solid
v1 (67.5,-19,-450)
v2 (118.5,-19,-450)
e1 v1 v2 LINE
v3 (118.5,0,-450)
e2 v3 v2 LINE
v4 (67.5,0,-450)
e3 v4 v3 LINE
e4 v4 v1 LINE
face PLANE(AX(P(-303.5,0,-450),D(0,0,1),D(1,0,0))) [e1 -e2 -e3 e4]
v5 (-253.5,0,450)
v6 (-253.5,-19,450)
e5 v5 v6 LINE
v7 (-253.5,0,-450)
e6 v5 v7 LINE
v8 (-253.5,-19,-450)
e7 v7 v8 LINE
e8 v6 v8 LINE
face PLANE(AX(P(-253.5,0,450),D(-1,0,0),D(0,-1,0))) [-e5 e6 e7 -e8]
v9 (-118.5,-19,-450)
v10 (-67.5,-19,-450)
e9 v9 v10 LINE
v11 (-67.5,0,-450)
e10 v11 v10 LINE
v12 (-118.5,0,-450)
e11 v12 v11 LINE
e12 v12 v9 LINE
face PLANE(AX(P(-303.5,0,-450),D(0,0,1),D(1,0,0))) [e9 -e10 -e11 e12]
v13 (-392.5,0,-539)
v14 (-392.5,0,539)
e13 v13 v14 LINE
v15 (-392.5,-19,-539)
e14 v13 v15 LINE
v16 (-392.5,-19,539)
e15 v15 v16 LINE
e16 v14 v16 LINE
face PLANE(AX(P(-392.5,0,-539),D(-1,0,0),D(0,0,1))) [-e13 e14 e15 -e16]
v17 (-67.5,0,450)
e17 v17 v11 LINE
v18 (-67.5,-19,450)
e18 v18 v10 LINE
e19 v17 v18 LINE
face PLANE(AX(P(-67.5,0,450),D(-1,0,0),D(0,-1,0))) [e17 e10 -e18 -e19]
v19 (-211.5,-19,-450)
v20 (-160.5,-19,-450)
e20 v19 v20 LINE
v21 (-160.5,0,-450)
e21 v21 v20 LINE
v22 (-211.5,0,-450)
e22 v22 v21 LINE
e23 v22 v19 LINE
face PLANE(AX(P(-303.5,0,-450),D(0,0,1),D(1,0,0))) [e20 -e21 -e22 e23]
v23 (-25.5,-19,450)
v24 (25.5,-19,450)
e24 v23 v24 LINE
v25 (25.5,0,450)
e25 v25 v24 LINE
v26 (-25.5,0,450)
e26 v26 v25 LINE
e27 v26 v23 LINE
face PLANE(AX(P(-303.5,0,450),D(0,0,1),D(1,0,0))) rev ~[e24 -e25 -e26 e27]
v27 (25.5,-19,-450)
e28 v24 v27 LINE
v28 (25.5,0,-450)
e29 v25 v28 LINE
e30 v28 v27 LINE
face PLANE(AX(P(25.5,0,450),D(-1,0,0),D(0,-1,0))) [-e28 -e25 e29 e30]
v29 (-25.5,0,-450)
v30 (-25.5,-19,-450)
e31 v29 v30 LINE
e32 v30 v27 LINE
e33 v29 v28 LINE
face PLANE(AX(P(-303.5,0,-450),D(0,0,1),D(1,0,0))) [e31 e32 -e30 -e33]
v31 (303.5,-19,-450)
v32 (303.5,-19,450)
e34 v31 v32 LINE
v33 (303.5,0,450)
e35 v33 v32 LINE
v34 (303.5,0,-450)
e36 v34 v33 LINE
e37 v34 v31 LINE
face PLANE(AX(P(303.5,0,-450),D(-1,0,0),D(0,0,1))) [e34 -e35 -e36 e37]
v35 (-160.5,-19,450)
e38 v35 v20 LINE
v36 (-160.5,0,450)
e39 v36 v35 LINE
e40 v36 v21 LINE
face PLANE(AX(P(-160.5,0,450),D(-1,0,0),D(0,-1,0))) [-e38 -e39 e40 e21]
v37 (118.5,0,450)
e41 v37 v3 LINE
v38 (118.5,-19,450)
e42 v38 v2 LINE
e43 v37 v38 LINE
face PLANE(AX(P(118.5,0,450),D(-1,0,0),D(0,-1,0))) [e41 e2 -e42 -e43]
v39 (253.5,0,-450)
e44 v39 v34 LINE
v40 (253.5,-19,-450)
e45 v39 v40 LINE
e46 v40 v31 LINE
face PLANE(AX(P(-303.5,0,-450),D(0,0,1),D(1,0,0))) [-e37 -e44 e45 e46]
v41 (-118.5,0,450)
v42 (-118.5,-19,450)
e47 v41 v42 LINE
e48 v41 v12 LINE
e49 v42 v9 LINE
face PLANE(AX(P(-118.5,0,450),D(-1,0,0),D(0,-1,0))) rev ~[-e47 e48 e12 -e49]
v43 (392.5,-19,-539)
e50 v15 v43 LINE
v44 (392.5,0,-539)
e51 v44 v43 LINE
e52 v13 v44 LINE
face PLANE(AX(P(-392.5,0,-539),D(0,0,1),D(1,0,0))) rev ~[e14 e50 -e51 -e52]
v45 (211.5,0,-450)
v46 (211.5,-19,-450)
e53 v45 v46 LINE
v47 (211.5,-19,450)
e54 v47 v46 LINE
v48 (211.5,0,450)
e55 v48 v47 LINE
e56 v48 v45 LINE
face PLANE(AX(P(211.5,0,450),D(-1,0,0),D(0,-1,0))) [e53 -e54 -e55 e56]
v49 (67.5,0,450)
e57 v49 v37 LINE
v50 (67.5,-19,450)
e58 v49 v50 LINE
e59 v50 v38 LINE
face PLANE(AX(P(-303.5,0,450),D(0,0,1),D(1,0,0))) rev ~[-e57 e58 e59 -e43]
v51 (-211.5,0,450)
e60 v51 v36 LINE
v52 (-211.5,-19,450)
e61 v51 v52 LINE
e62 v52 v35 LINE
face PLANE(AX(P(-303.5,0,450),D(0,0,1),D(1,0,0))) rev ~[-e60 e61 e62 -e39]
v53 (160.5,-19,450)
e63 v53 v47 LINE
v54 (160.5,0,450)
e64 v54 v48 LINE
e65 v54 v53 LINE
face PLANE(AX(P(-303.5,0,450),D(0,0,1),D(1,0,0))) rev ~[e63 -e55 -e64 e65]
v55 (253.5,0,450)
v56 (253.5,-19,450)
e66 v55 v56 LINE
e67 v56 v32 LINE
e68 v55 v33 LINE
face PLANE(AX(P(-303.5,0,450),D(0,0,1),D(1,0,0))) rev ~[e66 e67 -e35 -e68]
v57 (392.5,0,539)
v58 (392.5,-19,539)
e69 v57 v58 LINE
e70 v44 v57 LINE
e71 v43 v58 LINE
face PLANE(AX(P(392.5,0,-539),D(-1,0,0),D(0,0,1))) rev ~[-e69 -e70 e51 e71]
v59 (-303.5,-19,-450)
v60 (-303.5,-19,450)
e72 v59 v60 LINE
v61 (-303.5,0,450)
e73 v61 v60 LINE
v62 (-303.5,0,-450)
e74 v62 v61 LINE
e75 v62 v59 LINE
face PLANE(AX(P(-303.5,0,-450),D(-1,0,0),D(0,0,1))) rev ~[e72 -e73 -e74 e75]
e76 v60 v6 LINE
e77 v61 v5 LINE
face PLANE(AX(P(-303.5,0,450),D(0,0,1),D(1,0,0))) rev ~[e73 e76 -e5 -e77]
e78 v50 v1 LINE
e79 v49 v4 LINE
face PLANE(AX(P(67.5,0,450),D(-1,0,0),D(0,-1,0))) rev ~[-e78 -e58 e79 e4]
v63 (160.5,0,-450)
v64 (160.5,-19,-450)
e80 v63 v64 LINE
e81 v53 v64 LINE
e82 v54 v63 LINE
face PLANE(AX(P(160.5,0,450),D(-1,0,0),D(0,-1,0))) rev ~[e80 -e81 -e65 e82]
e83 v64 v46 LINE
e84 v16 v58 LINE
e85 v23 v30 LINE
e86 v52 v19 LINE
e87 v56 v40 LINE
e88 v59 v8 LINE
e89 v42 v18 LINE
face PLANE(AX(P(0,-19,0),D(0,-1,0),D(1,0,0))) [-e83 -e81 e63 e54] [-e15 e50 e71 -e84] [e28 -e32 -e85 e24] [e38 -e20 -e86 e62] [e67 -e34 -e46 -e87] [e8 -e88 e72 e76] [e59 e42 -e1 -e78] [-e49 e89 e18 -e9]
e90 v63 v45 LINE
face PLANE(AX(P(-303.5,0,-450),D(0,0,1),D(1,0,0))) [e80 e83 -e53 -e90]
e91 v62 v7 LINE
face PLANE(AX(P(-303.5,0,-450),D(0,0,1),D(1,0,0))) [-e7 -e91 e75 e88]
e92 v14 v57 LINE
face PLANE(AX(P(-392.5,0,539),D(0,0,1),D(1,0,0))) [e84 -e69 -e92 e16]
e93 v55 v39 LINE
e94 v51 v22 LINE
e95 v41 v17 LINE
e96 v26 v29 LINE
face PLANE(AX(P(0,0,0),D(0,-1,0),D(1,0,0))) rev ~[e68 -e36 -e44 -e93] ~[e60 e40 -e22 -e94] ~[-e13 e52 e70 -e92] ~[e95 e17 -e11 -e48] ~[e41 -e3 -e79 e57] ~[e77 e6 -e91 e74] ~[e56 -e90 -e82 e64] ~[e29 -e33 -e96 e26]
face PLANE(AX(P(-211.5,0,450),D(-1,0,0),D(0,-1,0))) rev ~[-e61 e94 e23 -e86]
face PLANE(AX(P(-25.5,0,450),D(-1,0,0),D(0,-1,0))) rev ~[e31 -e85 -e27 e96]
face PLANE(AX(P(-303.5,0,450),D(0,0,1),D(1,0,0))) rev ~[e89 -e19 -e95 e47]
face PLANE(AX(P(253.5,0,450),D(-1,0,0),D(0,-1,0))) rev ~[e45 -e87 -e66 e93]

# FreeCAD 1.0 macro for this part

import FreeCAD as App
import Part
import Sketcher
from FreeCAD import Vector
Q = App.Units.Quantity

doc = App.newDocument("Part")
body = doc.addObject("PartDesign::Body", "Body")

# Sketch on XZ plane
sketch1 = body.newObject("Sketcher::SketchObject", "Sketch")
sketch1.AttachmentSupport = (doc.getObject("XZ_Plane"), [""])
sketch1.MapMode = "FlatFace"
sketch1.addGeometry([
    Part.LineSegment(Vector(-392, 539, 0), Vector(-392, -539, 0)),  # 0
    Part.LineSegment(Vector(-392, -539, 0), Vector(392, -539, 0)),  # 1
    Part.LineSegment(Vector(392, -539, 0), Vector(392, 539, 0)),  # 2
    Part.LineSegment(Vector(392, 539, 0), Vector(-392, 539, 0)),  # 3
    Part.LineSegment(Vector(304, -450, 0), Vector(-304, -450, 0)),  # 4
    Part.LineSegment(Vector(-304, -450, 0), Vector(-304, 450, 0)),  # 5
    Part.LineSegment(Vector(-304, 450, 0), Vector(304, 450, 0)),  # 6
    Part.LineSegment(Vector(304, 450, 0), Vector(304, -450, 0)),  # 7
], False)
sketch1.addConstraint([
    Sketcher.Constraint("Coincident", 0, 2, 1, 1),
    Sketcher.Constraint("Coincident", 1, 2, 2, 1),
    Sketcher.Constraint("Coincident", 2, 2, 3, 1),
    Sketcher.Constraint("Coincident", 3, 2, 0, 1),
    Sketcher.Constraint("Coincident", 4, 2, 5, 1),
    Sketcher.Constraint("Coincident", 5, 2, 6, 1),
    Sketcher.Constraint("Coincident", 6, 2, 7, 1),
    Sketcher.Constraint("Coincident", 7, 2, 4, 1),
    Sketcher.Constraint("Vertical", 0),
    Sketcher.Constraint("Horizontal", 1),
    Sketcher.Constraint("Vertical", 2),
    Sketcher.Constraint("Horizontal", 3),
    Sketcher.Constraint("Horizontal", 4),
    Sketcher.Constraint("Vertical", 5),
    Sketcher.Constraint("Horizontal", 6),
    Sketcher.Constraint("Vertical", 7),
    Sketcher.Constraint("Symmetric", 0, 2, 2, 2, -1, 1),
    Sketcher.Constraint("Symmetric", 4, 2, 6, 2, -1, 1),
    Sketcher.Constraint("DistanceX", 1, 1, 1, 2, Q("785 mm")),
    Sketcher.Constraint("DistanceX", 4, 2, 4, 1, Q("607 mm")),
    Sketcher.Constraint("DistanceY", 0, 2, 0, 1, Q("1078 mm")),
    Sketcher.Constraint("DistanceY", 5, 1, 5, 2, Q("900 mm")),
])
pad1 = body.newObject("PartDesign::Pad", "Pad")
pad1.Profile = sketch1
pad1.Length = 19

# Sketch on XY plane
sketch2 = body.newObject("Sketcher::SketchObject", "Sketch001")
sketch2.AttachmentSupport = (doc.getObject("XY_Plane"), [""])
sketch2.MapMode = "FlatFace"
sketch2.AttachmentOffset = App.Placement(Vector(0, 0, 450), App.Rotation())
sketch2.addGeometry([
    Part.LineSegment(Vector(-254, -19, 0), Vector(-254, 0, 0)),  # 0
    Part.LineSegment(Vector(-254, 0, 0), Vector(-212, 0, 0)),  # 1
    Part.LineSegment(Vector(-212, 0, 0), Vector(-212, -19, 0)),  # 2
    Part.LineSegment(Vector(-212, -19, 0), Vector(-254, -19, 0)),  # 3
    Part.LineSegment(Vector(-160, -19, 0), Vector(-160, 0, 0)),  # 4
    Part.LineSegment(Vector(-160, 0, 0), Vector(-118, 0, 0)),  # 5
    Part.LineSegment(Vector(-118, 0, 0), Vector(-118, -19, 0)),  # 6
    Part.LineSegment(Vector(-118, -19, 0), Vector(-160, -19, 0)),  # 7
    Part.LineSegment(Vector(-68, -19, 0), Vector(-68, 0, 0)),  # 8
    Part.LineSegment(Vector(-68, 0, 0), Vector(-26, 0, 0)),  # 9
    Part.LineSegment(Vector(-26, 0, 0), Vector(-26, -19, 0)),  # 10
    Part.LineSegment(Vector(-26, -19, 0), Vector(-68, -19, 0)),  # 11
    Part.LineSegment(Vector(26, -19, 0), Vector(26, 0, 0)),  # 12
    Part.LineSegment(Vector(26, 0, 0), Vector(68, 0, 0)),  # 13
    Part.LineSegment(Vector(68, 0, 0), Vector(68, -19, 0)),  # 14
    Part.LineSegment(Vector(68, -19, 0), Vector(26, -19, 0)),  # 15
    Part.LineSegment(Vector(118, -19, 0), Vector(118, 0, 0)),  # 16
    Part.LineSegment(Vector(118, 0, 0), Vector(160, 0, 0)),  # 17
    Part.LineSegment(Vector(160, 0, 0), Vector(160, -19, 0)),  # 18
    Part.LineSegment(Vector(160, -19, 0), Vector(118, -19, 0)),  # 19
    Part.LineSegment(Vector(212, -19, 0), Vector(212, 0, 0)),  # 20
    Part.LineSegment(Vector(212, 0, 0), Vector(254, 0, 0)),  # 21
    Part.LineSegment(Vector(254, 0, 0), Vector(254, -19, 0)),  # 22
    Part.LineSegment(Vector(254, -19, 0), Vector(212, -19, 0)),  # 23
], False)
sketch2.addConstraint([
    Sketcher.Constraint("Coincident", 0, 2, 1, 1),
    Sketcher.Constraint("Coincident", 1, 2, 2, 1),
    Sketcher.Constraint("Coincident", 2, 2, 3, 1),
    Sketcher.Constraint("Coincident", 3, 2, 0, 1),
    Sketcher.Constraint("Coincident", 4, 2, 5, 1),
    Sketcher.Constraint("Coincident", 5, 2, 6, 1),
    Sketcher.Constraint("Coincident", 6, 2, 7, 1),
    Sketcher.Constraint("Coincident", 7, 2, 4, 1),
    Sketcher.Constraint("Coincident", 8, 2, 9, 1),
    Sketcher.Constraint("Coincident", 9, 2, 10, 1),
    Sketcher.Constraint("Coincident", 10, 2, 11, 1),
    Sketcher.Constraint("Coincident", 11, 2, 8, 1),
    Sketcher.Constraint("Coincident", 12, 2, 13, 1),
    Sketcher.Constraint("Coincident", 13, 2, 14, 1),
    Sketcher.Constraint("Coincident", 14, 2, 15, 1),
    Sketcher.Constraint("Coincident", 15, 2, 12, 1),
    Sketcher.Constraint("Coincident", 16, 2, 17, 1),
    Sketcher.Constraint("Coincident", 17, 2, 18, 1),
    Sketcher.Constraint("Coincident", 18, 2, 19, 1),
    Sketcher.Constraint("Coincident", 19, 2, 16, 1),
    Sketcher.Constraint("Coincident", 20, 2, 21, 1),
    Sketcher.Constraint("Coincident", 21, 2, 22, 1),
    Sketcher.Constraint("Coincident", 22, 2, 23, 1),
    Sketcher.Constraint("Coincident", 23, 2, 20, 1),
    Sketcher.Constraint("Vertical", 0),
    Sketcher.Constraint("Horizontal", 1),
    Sketcher.Constraint("Vertical", 2),
    Sketcher.Constraint("Horizontal", 3),
    Sketcher.Constraint("Vertical", 4),
    Sketcher.Constraint("Horizontal", 5),
    Sketcher.Constraint("Vertical", 6),
    Sketcher.Constraint("Horizontal", 7),
    Sketcher.Constraint("Vertical", 8),
    Sketcher.Constraint("Horizontal", 9),
    Sketcher.Constraint("Vertical", 10),
    Sketcher.Constraint("Horizontal", 11),
    Sketcher.Constraint("Vertical", 12),
    Sketcher.Constraint("Horizontal", 13),
    Sketcher.Constraint("Vertical", 14),
    Sketcher.Constraint("Horizontal", 15),
    Sketcher.Constraint("Vertical", 16),
    Sketcher.Constraint("Horizontal", 17),
    Sketcher.Constraint("Vertical", 18),
    Sketcher.Constraint("Horizontal", 19),
    Sketcher.Constraint("Vertical", 20),
    Sketcher.Constraint("Horizontal", 21),
    Sketcher.Constraint("Vertical", 22),
    Sketcher.Constraint("Horizontal", 23),
    Sketcher.Constraint("Symmetric", 9, 2, 12, 2, -1, 1),
    Sketcher.Constraint("Symmetric", 5, 2, 16, 2, -1, 1),
    Sketcher.Constraint("Symmetric", 1, 2, 20, 2, -1, 1),
    Sketcher.Constraint("Symmetric", 8, 2, 13, 2, -2),
    Sketcher.Constraint("Symmetric", 4, 2, 17, 2, -2),
    Sketcher.Constraint("Symmetric", 0, 2, 21, 2, -2),
    Sketcher.Constraint("Horizontal", 3, 2, 6, 2),
    Sketcher.Constraint("Horizontal", 7, 2, 10, 2),
    Sketcher.Constraint("Horizontal", 11, 2, 14, 2),
    Sketcher.Constraint("Horizontal", 15, 2, 18, 2),
    Sketcher.Constraint("Horizontal", 19, 2, 22, 2),
    Sketcher.Constraint("Equal", 3, 5),
    Sketcher.Constraint("Equal", 7, 9),
    Sketcher.Constraint("DistanceX", 1, 1, 1, 2, Q("42 mm")),
    Sketcher.Constraint("DistanceY", 0, 1, 0, 2, Q("19 mm")),
    Sketcher.Constraint("DistanceX", 1, 2, 4, 2, Q("51 mm")),
    Sketcher.Constraint("DistanceX", 5, 2, 8, 2, Q("51 mm")),
    Sketcher.Constraint("DistanceX", 9, 2, 12, 2, Q("51 mm")),
])
pad2 = body.newObject("PartDesign::Pad", "Pad001")
pad2.Profile = sketch2
pad2.Type = "UpToLast"
pad2.Reversed = True

doc.recompute()
